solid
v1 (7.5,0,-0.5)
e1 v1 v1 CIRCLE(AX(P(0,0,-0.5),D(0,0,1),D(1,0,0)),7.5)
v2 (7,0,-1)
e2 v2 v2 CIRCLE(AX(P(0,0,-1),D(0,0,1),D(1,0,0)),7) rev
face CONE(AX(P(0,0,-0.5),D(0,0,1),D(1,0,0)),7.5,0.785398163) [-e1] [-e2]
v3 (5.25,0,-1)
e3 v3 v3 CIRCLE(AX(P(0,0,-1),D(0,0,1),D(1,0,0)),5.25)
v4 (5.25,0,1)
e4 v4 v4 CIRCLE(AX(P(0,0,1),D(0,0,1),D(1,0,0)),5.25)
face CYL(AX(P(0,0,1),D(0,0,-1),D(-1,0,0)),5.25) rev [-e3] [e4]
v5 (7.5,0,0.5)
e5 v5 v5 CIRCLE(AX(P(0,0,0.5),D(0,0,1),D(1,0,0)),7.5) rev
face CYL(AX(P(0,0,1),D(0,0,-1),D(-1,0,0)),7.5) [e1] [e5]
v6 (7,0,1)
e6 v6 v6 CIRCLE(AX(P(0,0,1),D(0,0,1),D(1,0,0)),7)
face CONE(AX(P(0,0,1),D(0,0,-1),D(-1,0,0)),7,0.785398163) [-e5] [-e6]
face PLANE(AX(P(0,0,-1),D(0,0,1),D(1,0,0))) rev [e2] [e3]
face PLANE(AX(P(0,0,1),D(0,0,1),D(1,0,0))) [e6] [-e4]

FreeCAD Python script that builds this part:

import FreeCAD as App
import Part
import Sketcher

V = App.Vector
Q = App.Units.Quantity


def edges_at(feature, points):
    """Names of the edges that pass closest to the given points."""
    edges = feature.Shape.Edges
    near = lambda p: min(range(len(edges)), key=lambda i: edges[i].distToShape(Part.Vertex(*p))[0])
    return sorted({f"Edge{near(p) + 1}" for p in points})

doc = App.newDocument("Part")
params = doc.addObject("Spreadsheet::Sheet", "Params")
for row, (alias, value) in enumerate([
    ("sketch1_diameter", "15 mm"),
    ("sketch1_diameter2", "10.5 mm"),
    ("pad1_length", "2 mm"),
    ("chamfer_size", "0.5 mm"),
], start=1):
    params.set(f"A{row}", alias)
    params.set(f"B{row}", "=" + value)
    params.setAlias(f"B{row}", alias)

body = doc.addObject("PartDesign::Body", "Body")

# Sketch on XY plane
sketch1 = body.newObject("Sketcher::SketchObject", "Sketch")
sketch1.AttachmentSupport = (doc.getObject("XY_Plane"), [""])
sketch1.MapMode = "FlatFace"
sketch1.addGeometry([
    Part.Circle(V(0, 0, 0), V(0, 0, 1), 8),
    Part.Circle(V(0, 0, 0), V(0, 0, 1), 5),
], False)
sketch1.addConstraint([
    Sketcher.Constraint("Coincident", 0, 3, -1, 1),
    Sketcher.Constraint("Coincident", 1, 3, -1, 1),
    Sketcher.Constraint("Diameter", 0, Q("15 mm")),
    Sketcher.Constraint("Diameter", 1, Q("10.5 mm")),
])
sketch1.setExpression("Constraints[2]", "Params.sketch1_diameter")
sketch1.setExpression("Constraints[3]", "Params.sketch1_diameter2")
pad1 = body.newObject("PartDesign::Pad", "Pad")
pad1.Profile = sketch1
pad1.setExpression("Length", "Params.pad1_length")
pad1.Midplane = True
doc.recompute()

chamfer = body.newObject("PartDesign::Chamfer", "Chamfer")
chamfer.Base = (pad1, edges_at(pad1, [(-7.5, 0, -1), (-7.5, 0, 1)]))
chamfer.setExpression("Size", "Params.chamfer_size")

doc.recompute()
